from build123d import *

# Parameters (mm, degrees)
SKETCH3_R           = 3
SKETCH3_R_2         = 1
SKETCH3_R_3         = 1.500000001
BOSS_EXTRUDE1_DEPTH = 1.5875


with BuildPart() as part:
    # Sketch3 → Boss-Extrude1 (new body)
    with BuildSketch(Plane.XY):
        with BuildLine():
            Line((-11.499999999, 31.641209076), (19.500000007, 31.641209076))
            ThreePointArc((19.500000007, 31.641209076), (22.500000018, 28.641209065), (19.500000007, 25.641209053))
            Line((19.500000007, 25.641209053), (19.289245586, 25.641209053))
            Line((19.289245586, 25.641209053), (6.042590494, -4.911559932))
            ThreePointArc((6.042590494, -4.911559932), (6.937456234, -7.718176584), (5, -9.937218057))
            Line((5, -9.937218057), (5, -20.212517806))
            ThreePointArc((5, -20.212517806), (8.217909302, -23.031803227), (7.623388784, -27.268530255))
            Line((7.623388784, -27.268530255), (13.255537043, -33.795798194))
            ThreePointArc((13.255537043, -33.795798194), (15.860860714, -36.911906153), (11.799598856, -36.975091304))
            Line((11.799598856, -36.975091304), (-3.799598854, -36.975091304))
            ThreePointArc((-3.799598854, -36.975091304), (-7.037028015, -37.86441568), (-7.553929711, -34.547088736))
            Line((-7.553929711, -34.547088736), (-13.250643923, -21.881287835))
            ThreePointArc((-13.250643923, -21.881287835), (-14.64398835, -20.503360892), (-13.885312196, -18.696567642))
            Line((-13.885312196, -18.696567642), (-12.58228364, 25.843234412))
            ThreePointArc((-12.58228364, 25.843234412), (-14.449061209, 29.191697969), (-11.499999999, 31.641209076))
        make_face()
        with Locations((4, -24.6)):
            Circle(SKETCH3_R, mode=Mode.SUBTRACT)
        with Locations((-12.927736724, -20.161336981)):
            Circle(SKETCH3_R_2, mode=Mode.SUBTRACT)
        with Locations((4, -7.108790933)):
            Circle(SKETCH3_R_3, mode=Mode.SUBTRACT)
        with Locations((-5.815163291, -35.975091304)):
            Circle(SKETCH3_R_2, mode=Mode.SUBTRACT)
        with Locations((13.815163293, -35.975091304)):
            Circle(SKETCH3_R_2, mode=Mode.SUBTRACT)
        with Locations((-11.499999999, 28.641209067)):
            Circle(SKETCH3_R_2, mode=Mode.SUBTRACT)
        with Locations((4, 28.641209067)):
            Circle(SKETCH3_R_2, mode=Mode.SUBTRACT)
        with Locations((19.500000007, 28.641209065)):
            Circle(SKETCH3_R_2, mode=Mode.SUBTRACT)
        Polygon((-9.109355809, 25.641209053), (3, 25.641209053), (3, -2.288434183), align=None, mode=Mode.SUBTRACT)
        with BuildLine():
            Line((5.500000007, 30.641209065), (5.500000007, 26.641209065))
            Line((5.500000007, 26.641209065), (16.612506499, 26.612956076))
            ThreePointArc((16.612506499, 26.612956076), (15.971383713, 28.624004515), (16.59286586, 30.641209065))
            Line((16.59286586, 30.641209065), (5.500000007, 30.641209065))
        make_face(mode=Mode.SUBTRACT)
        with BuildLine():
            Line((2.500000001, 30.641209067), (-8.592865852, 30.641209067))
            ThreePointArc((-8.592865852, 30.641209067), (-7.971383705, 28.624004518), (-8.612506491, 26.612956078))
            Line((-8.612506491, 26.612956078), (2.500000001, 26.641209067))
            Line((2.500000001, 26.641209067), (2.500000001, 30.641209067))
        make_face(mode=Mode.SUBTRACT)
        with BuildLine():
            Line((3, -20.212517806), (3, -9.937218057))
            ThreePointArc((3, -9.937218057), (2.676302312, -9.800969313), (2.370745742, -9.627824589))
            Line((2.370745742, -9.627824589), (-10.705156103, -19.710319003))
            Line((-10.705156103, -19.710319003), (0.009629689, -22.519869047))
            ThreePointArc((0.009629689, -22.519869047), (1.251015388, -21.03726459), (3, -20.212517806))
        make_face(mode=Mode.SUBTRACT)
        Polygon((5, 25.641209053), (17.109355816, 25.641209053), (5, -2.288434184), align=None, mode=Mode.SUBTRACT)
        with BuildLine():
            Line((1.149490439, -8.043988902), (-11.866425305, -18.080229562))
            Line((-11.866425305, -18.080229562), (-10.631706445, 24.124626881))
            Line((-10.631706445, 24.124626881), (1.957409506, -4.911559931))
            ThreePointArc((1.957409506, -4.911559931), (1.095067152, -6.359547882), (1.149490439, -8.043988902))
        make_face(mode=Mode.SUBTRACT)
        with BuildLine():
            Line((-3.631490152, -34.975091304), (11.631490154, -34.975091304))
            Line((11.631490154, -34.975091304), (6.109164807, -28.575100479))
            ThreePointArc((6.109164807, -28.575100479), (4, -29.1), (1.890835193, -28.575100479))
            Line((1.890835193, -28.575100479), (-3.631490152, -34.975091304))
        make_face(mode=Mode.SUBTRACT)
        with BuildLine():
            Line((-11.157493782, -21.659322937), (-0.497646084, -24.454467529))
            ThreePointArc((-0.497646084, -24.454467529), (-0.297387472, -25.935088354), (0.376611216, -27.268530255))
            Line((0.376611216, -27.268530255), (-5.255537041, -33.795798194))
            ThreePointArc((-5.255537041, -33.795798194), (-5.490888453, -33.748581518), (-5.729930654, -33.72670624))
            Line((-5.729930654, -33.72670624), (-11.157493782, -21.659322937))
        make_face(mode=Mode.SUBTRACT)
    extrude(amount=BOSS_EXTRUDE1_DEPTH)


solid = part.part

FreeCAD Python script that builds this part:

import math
import FreeCAD as App
import Part
import Sketcher
from FreeCAD import Vector
Q = App.Units.Quantity


def add_polygon(sketch, points):
    """Adds a closed chain of lines whose ends are joined by coincident constraints."""
    first, n = sketch.GeometryCount, len(points)
    for a, b in zip(points, points[1:] + points[:1]):
        sketch.addGeometry(Part.LineSegment(App.Vector(*a, 0), App.Vector(*b, 0)), False)
    for i in range(n):
        sketch.addConstraint(Sketcher.Constraint("Coincident", first + i, 2, first + (i + 1) % n, 1))

doc = App.newDocument("Part")
params = doc.addObject("Spreadsheet::Sheet", "Params")
for row, (alias, value) in enumerate([
    ("sketch1_diameter", "2 mm"),
    ("sketch1_diameter2", "6 mm"),
    ("sketch1_diameter3", "3 mm"),
    ("sketch1_radius", "4.5 mm"),
    ("sketch1_width", "31 mm"),
    ("pad1_length", "1.5875 mm"),
], start=1):
    params.set(f"A{row}", alias)
    params.set(f"B{row}", "=" + value)
    params.setAlias(f"B{row}", alias)

body = doc.addObject("PartDesign::Body", "Body")

sketch1 = body.newObject("Sketcher::SketchObject", "Sketch")
sketch1.AttachmentSupport = (doc.getObject("XY_Plane"), [""])
sketch1.MapMode = "FlatFace"
sketch1.addGeometry(Part.LineSegment(Vector(19.5, 31.641209, 0), Vector(-11.5, 31.641209, 0)), False)
sketch1.addGeometry(Part.ArcOfCircle(Part.Circle(Vector(-11.5, 28.641209, 0), Vector(0, 0, 1), 3), math.radians(90), math.radians(248.853048)), False)
sketch1.addGeometry(Part.LineSegment(Vector(-12.582284, 25.843234, 0), Vector(-13.885312, -18.696568, 0)), False)
sketch1.addGeometry(Part.ArcOfCircle(Part.Circle(Vector(-12.927737, -20.161337, 0), Vector(0, 0, 1), 1.75), math.radians(123.174173), math.radians(259.366945)), False)
sketch1.addGeometry(Part.LineSegment(Vector(-13.250644, -21.881288, 0), Vector(-7.55393, -34.547089, 0)), False)
sketch1.addGeometry(Part.ArcOfCircle(Part.Circle(Vector(-5.815163, -35.975091, 0), Vector(0, 0, 1), 2.25), math.radians(140.604649), math.radians(333.6122)), False)
sketch1.addGeometry(Part.LineSegment(Vector(-3.799599, -36.975091, 0), Vector(11.799599, -36.975091, 0)), False)
sketch1.addGeometry(Part.ArcOfCircle(Part.Circle(Vector(13.815163, -35.975091, 0), Vector(0, 0, 1), 2.25), math.radians(-153.6122), math.radians(104.401946)), False)
sketch1.addGeometry(Part.LineSegment(Vector(13.255537, -33.795798, 0), Vector(7.623389, -27.26853, 0)), False)
sketch1.addGeometry(Part.ArcOfCircle(Part.Circle(Vector(4, -24.6, 0), Vector(0, 0, 1), 4.5), math.radians(-36.370666), math.radians(77.160412)), False)
sketch1.addGeometry(Part.LineSegment(Vector(5, -20.212518, 0), Vector(5, -9.937218, 0)), False)
sketch1.addGeometry(Part.ArcOfCircle(Part.Circle(Vector(4, -7.108791, 0), Vector(0, 0, 1), 3), math.radians(-70.528779), math.radians(47.088843)), False)
sketch1.addGeometry(Part.LineSegment(Vector(6.04259, -4.91156, 0), Vector(19.289246, 25.641209, 0)), False)
sketch1.addGeometry(Part.LineSegment(Vector(19.289246, 25.641209, 0), Vector(19.5, 25.641209, 0)), False)
sketch1.addGeometry(Part.ArcOfCircle(Part.Circle(Vector(19.5, 28.641209, 0), Vector(0, 0, 1), 3), math.radians(-90), math.radians(90)), False)
sketch1.addGeometry(Part.Circle(Vector(13.815163, -35.975091, 0), Vector(0, 0, 1), 1), False)
sketch1.addGeometry(Part.LineSegment(Vector(-3.63149, -34.975091, 0), Vector(1.890835, -28.5751, 0)), False)
sketch1.addGeometry(Part.ArcOfCircle(Part.Circle(Vector(4, -24.6, 0), Vector(0, 0, 1), 4.5), math.radians(-117.950157), math.radians(-62.049843)), False)
sketch1.addGeometry(Part.LineSegment(Vector(6.109165, -28.5751, 0), Vector(11.63149, -34.975091, 0)), False)
sketch1.addGeometry(Part.LineSegment(Vector(11.63149, -34.975091, 0), Vector(-3.63149, -34.975091, 0)), False)
sketch1.addGeometry(Part.Circle(Vector(4, -24.6, 0), Vector(0, 0, 1), 3), False)
sketch1.addGeometry(Part.Circle(Vector(4, -7.108791, 0), Vector(0, 0, 1), 1.5), False)
sketch1.addGeometry(Part.Circle(Vector(-5.815163, -35.975091, 0), Vector(0, 0, 1), 1), False)
sketch1.addGeometry(Part.LineSegment(Vector(-11.157494, -21.659323, 0), Vector(-0.497646, -24.454468, 0)), False)
sketch1.addGeometry(Part.ArcOfCircle(Part.Circle(Vector(4, -24.6, 0), Vector(0, 0, 1), 4.5), math.radians(178.1467), math.radians(216.370666)), False)
sketch1.addGeometry(Part.LineSegment(Vector(0.376611, -27.26853, 0), Vector(-5.255537, -33.795798, 0)), False)
sketch1.addGeometry(Part.ArcOfCircle(Part.Circle(Vector(-5.815163, -35.975091, 0), Vector(0, 0, 1), 2.25), math.radians(75.598054), math.radians(87.829049)), False)
sketch1.addGeometry(Part.LineSegment(Vector(-5.729931, -33.726706, 0), Vector(-11.157494, -21.659323, 0)), False)
sketch1.addGeometry(Part.Circle(Vector(-12.927737, -20.161337, 0), Vector(0, 0, 1), 1), False)
sketch1.addGeometry(Part.ArcOfCircle(Part.Circle(Vector(4, -24.6, 0), Vector(0, 0, 1), 4.5), math.radians(102.839588), math.radians(152.467523)), False)
sketch1.addGeometry(Part.LineSegment(Vector(0.00963, -22.519869, 0), Vector(-10.705156, -19.710319, 0)), False)
sketch1.addGeometry(Part.LineSegment(Vector(-10.705156, -19.710319, 0), Vector(2.370746, -9.627825, 0)), False)
sketch1.addGeometry(Part.ArcOfCircle(Part.Circle(Vector(4, -7.108791, 0), Vector(0, 0, 1), 3), math.radians(-122.893879), math.radians(-109.47122)), False)
sketch1.addGeometry(Part.LineSegment(Vector(3, -9.937218, 0), Vector(3, -20.212518, 0)), False)
add_polygon(sketch1, [(5, 25.641209), (17.109356, 25.641209), (5, -2.288434)])
sketch1.addGeometry(Part.Circle(Vector(19.5, 28.641209, 0), Vector(0, 0, 1), 1), False)
sketch1.addGeometry(Part.LineSegment(Vector(5.5, 30.641209, 0), Vector(16.592866, 30.641209, 0)), False)
sketch1.addGeometry(Part.ArcOfCircle(Part.Circle(Vector(19.5, 28.641209, 0), Vector(0, 0, 1), 3.528658), math.radians(145.473477), math.radians(215.085235)), False)
sketch1.addGeometry(Part.LineSegment(Vector(16.612506, 26.612956, 0), Vector(5.5, 26.641209, 0)), False)
sketch1.addGeometry(Part.LineSegment(Vector(5.5, 26.641209, 0), Vector(5.5, 30.641209, 0)), False)
sketch1.addGeometry(Part.Circle(Vector(4, 28.641209, 0), Vector(0, 0, 1), 1), False)
sketch1.addGeometry(Part.LineSegment(Vector(1.14949, -8.043989, 0), Vector(-11.866425, -18.08023, 0)), False)
sketch1.addGeometry(Part.LineSegment(Vector(-11.866425, -18.08023, 0), Vector(-10.631706, 24.124627, 0)), False)
sketch1.addGeometry(Part.LineSegment(Vector(-10.631706, 24.124627, 0), Vector(1.95741, -4.91156, 0)), False)
sketch1.addGeometry(Part.ArcOfCircle(Part.Circle(Vector(4, -7.108791, 0), Vector(0, 0, 1), 3), math.radians(132.911157), math.radians(198.163679)), False)
add_polygon(sketch1, [(-9.109356, 25.641209), (3, 25.641209), (3, -2.288434)])
sketch1.addGeometry(Part.LineSegment(Vector(2.5, 30.641209, 0), Vector(2.5, 26.641209, 0)), False)
sketch1.addGeometry(Part.LineSegment(Vector(2.5, 26.641209, 0), Vector(-8.612506, 26.612956, 0)), False)
sketch1.addGeometry(Part.ArcOfCircle(Part.Circle(Vector(-11.5, 28.641209, 0), Vector(0, 0, 1), 3.528658), math.radians(-35.085235), math.radians(34.526523)), False)
sketch1.addGeometry(Part.LineSegment(Vector(-8.592866, 30.641209, 0), Vector(2.5, 30.641209, 0)), False)
sketch1.addGeometry(Part.Circle(Vector(-11.5, 28.641209, 0), Vector(0, 0, 1), 1), False)
sketch1.addConstraint(Sketcher.Constraint("Tangent", 0, 2, 1, 1))
sketch1.addConstraint(Sketcher.Constraint("Coincident", 1, 2, 2, 1))
sketch1.addConstraint(Sketcher.Constraint("Coincident", 2, 2, 3, 1))
sketch1.addConstraint(Sketcher.Constraint("Coincident", 3, 2, 4, 1))
sketch1.addConstraint(Sketcher.Constraint("Coincident", 4, 2, 5, 1))
sketch1.addConstraint(Sketcher.Constraint("Coincident", 5, 2, 6, 1))
sketch1.addConstraint(Sketcher.Constraint("Coincident", 6, 2, 7, 1))
sketch1.addConstraint(Sketcher.Constraint("Coincident", 7, 2, 8, 1))
sketch1.addConstraint(Sketcher.Constraint("Coincident", 8, 2, 9, 1))
sketch1.addConstraint(Sketcher.Constraint("Coincident", 9, 2, 10, 1))
sketch1.addConstraint(Sketcher.Constraint("Coincident", 10, 2, 11, 1))
sketch1.addConstraint(Sketcher.Constraint("Coincident", 11, 2, 12, 1))
sketch1.addConstraint(Sketcher.Constraint("Coincident", 12, 2, 13, 1))
sketch1.addConstraint(Sketcher.Constraint("Tangent", 13, 2, 14, 1))
sketch1.addConstraint(Sketcher.Constraint("Tangent", 14, 2, 0, 1))
sketch1.addConstraint(Sketcher.Constraint("Coincident", 16, 2, 17, 1))
sketch1.addConstraint(Sketcher.Constraint("Coincident", 17, 2, 18, 1))
sketch1.addConstraint(Sketcher.Constraint("Coincident", 18, 2, 19, 1))
sketch1.addConstraint(Sketcher.Constraint("Coincident", 19, 2, 16, 1))
sketch1.addConstraint(Sketcher.Constraint("Coincident", 23, 2, 24, 1))
sketch1.addConstraint(Sketcher.Constraint("Coincident", 24, 2, 25, 1))
sketch1.addConstraint(Sketcher.Constraint("Coincident", 25, 2, 26, 1))
sketch1.addConstraint(Sketcher.Constraint("Coincident", 26, 2, 27, 1))
sketch1.addConstraint(Sketcher.Constraint("Coincident", 27, 2, 23, 1))
sketch1.addConstraint(Sketcher.Constraint("Coincident", 29, 2, 30, 1))
sketch1.addConstraint(Sketcher.Constraint("Coincident", 30, 2, 31, 1))
sketch1.addConstraint(Sketcher.Constraint("Coincident", 31, 2, 32, 1))
sketch1.addConstraint(Sketcher.Constraint("Coincident", 32, 2, 33, 1))
sketch1.addConstraint(Sketcher.Constraint("Coincident", 33, 2, 29, 1))
sketch1.addConstraint(Sketcher.Constraint("Coincident", 38, 2, 39, 1))
sketch1.addConstraint(Sketcher.Constraint("Coincident", 39, 2, 40, 1))
sketch1.addConstraint(Sketcher.Constraint("Coincident", 40, 2, 41, 1))
sketch1.addConstraint(Sketcher.Constraint("Coincident", 41, 2, 38, 1))
sketch1.addConstraint(Sketcher.Constraint("Coincident", 43, 2, 44, 1))
sketch1.addConstraint(Sketcher.Constraint("Coincident", 44, 2, 45, 1))
sketch1.addConstraint(Sketcher.Constraint("Coincident", 45, 2, 46, 1))
sketch1.addConstraint(Sketcher.Constraint("Coincident", 46, 2, 43, 1))
sketch1.addConstraint(Sketcher.Constraint("Coincident", 50, 2, 51, 1))
sketch1.addConstraint(Sketcher.Constraint("Coincident", 51, 2, 52, 1))
sketch1.addConstraint(Sketcher.Constraint("Coincident", 52, 2, 53, 1))
sketch1.addConstraint(Sketcher.Constraint("Coincident", 53, 2, 50, 1))
sketch1.addConstraint(Sketcher.Constraint("Horizontal", 0))
sketch1.addConstraint(Sketcher.Constraint("Horizontal", 6))
sketch1.addConstraint(Sketcher.Constraint("Vertical", 10))
sketch1.addConstraint(Sketcher.Constraint("Horizontal", 13))
sketch1.addConstraint(Sketcher.Constraint("Horizontal", 19))
sketch1.addConstraint(Sketcher.Constraint("Vertical", 33))
sketch1.addConstraint(Sketcher.Constraint("Horizontal", 34))
sketch1.addConstraint(Sketcher.Constraint("Vertical", 36))
sketch1.addConstraint(Sketcher.Constraint("Horizontal", 38))
sketch1.addConstraint(Sketcher.Constraint("Vertical", 41))
sketch1.addConstraint(Sketcher.Constraint("Horizontal", 47))
sketch1.addConstraint(Sketcher.Constraint("Vertical", 48))
sketch1.addConstraint(Sketcher.Constraint("Vertical", 50))
sketch1.addConstraint(Sketcher.Constraint("Horizontal", 53))
sketch1.addConstraint(Sketcher.Constraint("Coincident", 15, 3, 7, 3))
sketch1.addConstraint(Sketcher.Constraint("Coincident", 17, 3, 9, 3))
sketch1.addConstraint(Sketcher.Constraint("Coincident", 20, 3, 9, 3))
sketch1.addConstraint(Sketcher.Constraint("Coincident", 21, 3, 11, 3))
sketch1.addConstraint(Sketcher.Constraint("Coincident", 22, 3, 5, 3))
sketch1.addConstraint(Sketcher.Constraint("Coincident", 24, 3, 9, 3))
sketch1.addConstraint(Sketcher.Constraint("Coincident", 26, 3, 5, 3))
sketch1.addConstraint(Sketcher.Constraint("Coincident", 28, 3, 3, 3))
sketch1.addConstraint(Sketcher.Constraint("Coincident", 29, 3, 9, 3))
sketch1.addConstraint(Sketcher.Constraint("Coincident", 32, 3, 11, 3))
sketch1.addConstraint(Sketcher.Constraint("Coincident", 37, 3, 14, 3))
sketch1.addConstraint(Sketcher.Constraint("Coincident", 39, 3, 14, 3))
sketch1.addConstraint(Sketcher.Constraint("Coincident", 46, 3, 11, 3))
sketch1.addConstraint(Sketcher.Constraint("Coincident", 52, 3, 1, 3))
sketch1.addConstraint(Sketcher.Constraint("Coincident", 54, 3, 1, 3))
sketch1.addConstraint(Sketcher.Constraint("Equal", 5, 7))
sketch1.addConstraint(Sketcher.Constraint("Equal", 1, 11))
sketch1.addConstraint(Sketcher.Constraint("Equal", 11, 14))
sketch1.addConstraint(Sketcher.Constraint("Equal", 9, 17))
sketch1.addConstraint(Sketcher.Constraint("Equal", 14, 20))
sketch1.addConstraint(Sketcher.Constraint("Equal", 15, 22))
sketch1.addConstraint(Sketcher.Constraint("Equal", 17, 24))
sketch1.addConstraint(Sketcher.Constraint("Equal", 7, 26))
sketch1.addConstraint(Sketcher.Constraint("Equal", 22, 28))
sketch1.addConstraint(Sketcher.Constraint("Equal", 24, 29))
sketch1.addConstraint(Sketcher.Constraint("Equal", 20, 32))
sketch1.addConstraint(Sketcher.Constraint("Equal", 28, 37))
sketch1.addConstraint(Sketcher.Constraint("Equal", 37, 42))
sketch1.addConstraint(Sketcher.Constraint("Equal", 32, 46))
sketch1.addConstraint(Sketcher.Constraint("Equal", 39, 52))
sketch1.addConstraint(Sketcher.Constraint("Equal", 42, 54))
sketch1.addConstraint(Sketcher.Constraint("Parallel", 8, 18))
sketch1.addConstraint(Sketcher.Constraint("Parallel", 16, 25))
sketch1.addConstraint(Sketcher.Constraint("Parallel", 4, 27))
sketch1.addConstraint(Sketcher.Constraint("Parallel", 23, 30))
sketch1.addConstraint(Sketcher.Constraint("Parallel", 12, 35))
sketch1.addConstraint(Sketcher.Constraint("Parallel", 31, 43))
sketch1.addConstraint(Sketcher.Constraint("Parallel", 2, 44))
sketch1.addConstraint(Sketcher.Constraint("Parallel", 45, 49))
sketch1.addConstraint(Sketcher.Constraint("Horizontal", 5, 3, 7, 3))
sketch1.addConstraint(Sketcher.Constraint("Horizontal", 39, 3, 42, 3))
sketch1.addConstraint(Sketcher.Constraint("Horizontal", 16, 2, 17, 2))
sketch1.addConstraint(Sketcher.Constraint("Horizontal", 8, 2, 24, 2))
sketch1.addConstraint(Sketcher.Constraint("Horizontal", 7, 2, 25, 2))
sketch1.addConstraint(Sketcher.Constraint("Horizontal", 10, 2, 32, 2))
sketch1.addConstraint(Sketcher.Constraint("Horizontal", 9, 2, 33, 2))
sketch1.addConstraint(Sketcher.Constraint("Horizontal", 13, 2, 34, 2))
sketch1.addConstraint(Sketcher.Constraint("Horizontal", 11, 2, 45, 2))
sketch1.addConstraint(Sketcher.Constraint("Horizontal", 36, 2, 47, 2))
sketch1.addConstraint(Sketcher.Constraint("Horizontal", 35, 2, 48, 2))
sketch1.addConstraint(Sketcher.Constraint("Horizontal", 40, 2, 50, 2))
sketch1.addConstraint(Sketcher.Constraint("Horizontal", 39, 2, 51, 2))
sketch1.addConstraint(Sketcher.Constraint("Horizontal", 41, 2, 52, 2))
sketch1.addConstraint(Sketcher.Constraint("Vertical", 32, 3, 42, 3))
sketch1.addConstraint(Sketcher.Constraint("Vertical", 10, 2, 35, 2))
sketch1.addConstraint(Sketcher.Constraint("Vertical", 33, 2, 47, 2))
sketch1.addConstraint(Sketcher.Constraint("Equal", 34, 47))
sketch1.addConstraint(Sketcher.Constraint("Equal", 38, 53))
sketch1.addConstraint(Sketcher.Constraint("Equal", 16, 18))
sketch1.addConstraint(Sketcher.Constraint("Diameter", 15, Q("2 mm")))
sketch1.addConstraint(Sketcher.Constraint("Diameter", 20, Q("6 mm")))
sketch1.addConstraint(Sketcher.Constraint("Diameter", 21, Q("3 mm")))
sketch1.addConstraint(Sketcher.Constraint("Radius", 9, Q("4.5 mm")))
sketch1.addConstraint(Sketcher.Constraint("DistanceX", 0, 2, 0, 1, Q("31 mm")))
sketch1.addConstraint(Sketcher.Constraint("DistanceY", 41, 1, 41, 2, Q("4 mm")))
sketch1.addConstraint(Sketcher.Constraint("Radius", 3, Q("1.75 mm")))
sketch1.addConstraint(Sketcher.Constraint("Radius", 5, Q("2.25 mm")))
sketch1.addConstraint(Sketcher.Constraint("DistanceX", -1, 1, 9, 3, Q("4 mm")))
sketch1.addConstraint(Sketcher.Constraint("DistanceX", -1, 1, 9, 2, Q("5 mm")))
sketch1.addConstraint(Sketcher.Constraint("DistanceX", 1, 3, -1, 1, Q("11.5 mm")))
sketch1.addConstraint(Sketcher.Constraint("DistanceY", 9, 3, -1, 1, Q("24.6 mm")))
sketch1.addConstraint(Sketcher.Constraint("DistanceX", -1, 1, 40, 2, Q("5.5 mm")))
sketch1.addConstraint(Sketcher.Constraint("Radius", 39, Q("3.528658 mm")))
sketch1.addConstraint(Sketcher.Constraint("DistanceY", 10, 1, 10, 2, Q("10.2753 mm")))
sketch1.addConstraint(Sketcher.Constraint("DistanceX", 19, 2, 19, 1, Q("15.26298 mm")))
sketch1.addConstraint(Sketcher.Constraint("DistanceX", 5, 2, -1, 1, Q("3.799599 mm")))
sketch1.addConstraint(Sketcher.Constraint("DistanceY", 7, 2, -1, 1, Q("33.795798 mm")))
sketch1.addConstraint(Sketcher.Constraint("DistanceY", 16, 2, -1, 1, Q("28.5751 mm")))
sketch1.addConstraint(Sketcher.Constraint("Distance", 2, Q("44.558858 mm")))
sketch1.addConstraint(Sketcher.Constraint("Distance", 8, Q("8.621271 mm")))
sketch1.addConstraint(Sketcher.Constraint("Distance", 31, Q("16.51169 mm")))
sketch1.addConstraint(Sketcher.Constraint("Distance", 35, Q("30.441772 mm")))
sketch1.addConstraint(Sketcher.Constraint("Distance", 43, Q("16.435942 mm")))
sketch1.addConstraint(Sketcher.Constraint("DistanceX", 13, 1, 13, 2, Q("0.210754 mm")))
sketch1.addConstraint(Sketcher.Constraint("DistanceX", 34, 1, 34, 2, Q("12.109356 mm")))
sketch1.addConstraint(Sketcher.Constraint("DistanceX", 38, 1, 38, 2, Q("11.092866 mm")))
sketch1.addConstraint(Sketcher.Constraint("DistanceY", -1, 1, 1, 3, Q("28.641209 mm")))
sketch1.addConstraint(Sketcher.Constraint("DistanceY", 5, 3, -1, 1, Q("35.975091 mm")))
sketch1.addConstraint(Sketcher.Constraint("DistanceX", 4, 2, -1, 1, Q("7.55393 mm")))
sketch1.addConstraint(Sketcher.Constraint("DistanceY", 4, 2, -1, 1, Q("34.547089 mm")))
sketch1.addConstraint(Sketcher.Constraint("DistanceX", 26, 2, -1, 1, Q("5.729931 mm")))
sketch1.addConstraint(Sketcher.Constraint("DistanceX", -1, 1, 29, 2, Q("0.00963 mm")))
sketch1.addConstraint(Sketcher.Constraint("DistanceY", 30, 2, -1, 1, Q("19.710319 mm")))
sketch1.addConstraint(Sketcher.Constraint("DistanceY", 43, 2, -1, 1, Q("18.08023 mm")))
sketch1.addConstraint(Sketcher.Constraint("DistanceX", -1, 1, 46, 2, Q("1.14949 mm")))
sketch1.addConstraint(Sketcher.Constraint("Distance", 4, Q("13.887947 mm")))
sketch1.addConstraint(Sketcher.Constraint("Distance", 23, Q("11.020217 mm")))
sketch1.addConstraint(Sketcher.Constraint("Distance", 27, Q("13.231787 mm")))
sketch1.addConstraint(Sketcher.Constraint("Distance", 40, Q("11.112542 mm")))
sketch1.addConstraint(Sketcher.Constraint("Distance", 44, Q("42.222914 mm")))
sketch1.addConstraint(Sketcher.Constraint("DistanceX", 3, 3, -1, 1, Q("12.927737 mm")))
sketch1.setExpression("Constraints[120]", "Params.sketch1_diameter")
sketch1.setExpression("Constraints[121]", "Params.sketch1_diameter2")
sketch1.setExpression("Constraints[122]", "Params.sketch1_diameter3")
sketch1.setExpression("Constraints[123]", "Params.sketch1_radius")
sketch1.setExpression("Constraints[124]", "Params.sketch1_width")
pad1 = body.newObject("PartDesign::Pad", "Pad")
pad1.Profile = sketch1
pad1.setExpression("Length", "Params.pad1_length")

doc.recompute()
